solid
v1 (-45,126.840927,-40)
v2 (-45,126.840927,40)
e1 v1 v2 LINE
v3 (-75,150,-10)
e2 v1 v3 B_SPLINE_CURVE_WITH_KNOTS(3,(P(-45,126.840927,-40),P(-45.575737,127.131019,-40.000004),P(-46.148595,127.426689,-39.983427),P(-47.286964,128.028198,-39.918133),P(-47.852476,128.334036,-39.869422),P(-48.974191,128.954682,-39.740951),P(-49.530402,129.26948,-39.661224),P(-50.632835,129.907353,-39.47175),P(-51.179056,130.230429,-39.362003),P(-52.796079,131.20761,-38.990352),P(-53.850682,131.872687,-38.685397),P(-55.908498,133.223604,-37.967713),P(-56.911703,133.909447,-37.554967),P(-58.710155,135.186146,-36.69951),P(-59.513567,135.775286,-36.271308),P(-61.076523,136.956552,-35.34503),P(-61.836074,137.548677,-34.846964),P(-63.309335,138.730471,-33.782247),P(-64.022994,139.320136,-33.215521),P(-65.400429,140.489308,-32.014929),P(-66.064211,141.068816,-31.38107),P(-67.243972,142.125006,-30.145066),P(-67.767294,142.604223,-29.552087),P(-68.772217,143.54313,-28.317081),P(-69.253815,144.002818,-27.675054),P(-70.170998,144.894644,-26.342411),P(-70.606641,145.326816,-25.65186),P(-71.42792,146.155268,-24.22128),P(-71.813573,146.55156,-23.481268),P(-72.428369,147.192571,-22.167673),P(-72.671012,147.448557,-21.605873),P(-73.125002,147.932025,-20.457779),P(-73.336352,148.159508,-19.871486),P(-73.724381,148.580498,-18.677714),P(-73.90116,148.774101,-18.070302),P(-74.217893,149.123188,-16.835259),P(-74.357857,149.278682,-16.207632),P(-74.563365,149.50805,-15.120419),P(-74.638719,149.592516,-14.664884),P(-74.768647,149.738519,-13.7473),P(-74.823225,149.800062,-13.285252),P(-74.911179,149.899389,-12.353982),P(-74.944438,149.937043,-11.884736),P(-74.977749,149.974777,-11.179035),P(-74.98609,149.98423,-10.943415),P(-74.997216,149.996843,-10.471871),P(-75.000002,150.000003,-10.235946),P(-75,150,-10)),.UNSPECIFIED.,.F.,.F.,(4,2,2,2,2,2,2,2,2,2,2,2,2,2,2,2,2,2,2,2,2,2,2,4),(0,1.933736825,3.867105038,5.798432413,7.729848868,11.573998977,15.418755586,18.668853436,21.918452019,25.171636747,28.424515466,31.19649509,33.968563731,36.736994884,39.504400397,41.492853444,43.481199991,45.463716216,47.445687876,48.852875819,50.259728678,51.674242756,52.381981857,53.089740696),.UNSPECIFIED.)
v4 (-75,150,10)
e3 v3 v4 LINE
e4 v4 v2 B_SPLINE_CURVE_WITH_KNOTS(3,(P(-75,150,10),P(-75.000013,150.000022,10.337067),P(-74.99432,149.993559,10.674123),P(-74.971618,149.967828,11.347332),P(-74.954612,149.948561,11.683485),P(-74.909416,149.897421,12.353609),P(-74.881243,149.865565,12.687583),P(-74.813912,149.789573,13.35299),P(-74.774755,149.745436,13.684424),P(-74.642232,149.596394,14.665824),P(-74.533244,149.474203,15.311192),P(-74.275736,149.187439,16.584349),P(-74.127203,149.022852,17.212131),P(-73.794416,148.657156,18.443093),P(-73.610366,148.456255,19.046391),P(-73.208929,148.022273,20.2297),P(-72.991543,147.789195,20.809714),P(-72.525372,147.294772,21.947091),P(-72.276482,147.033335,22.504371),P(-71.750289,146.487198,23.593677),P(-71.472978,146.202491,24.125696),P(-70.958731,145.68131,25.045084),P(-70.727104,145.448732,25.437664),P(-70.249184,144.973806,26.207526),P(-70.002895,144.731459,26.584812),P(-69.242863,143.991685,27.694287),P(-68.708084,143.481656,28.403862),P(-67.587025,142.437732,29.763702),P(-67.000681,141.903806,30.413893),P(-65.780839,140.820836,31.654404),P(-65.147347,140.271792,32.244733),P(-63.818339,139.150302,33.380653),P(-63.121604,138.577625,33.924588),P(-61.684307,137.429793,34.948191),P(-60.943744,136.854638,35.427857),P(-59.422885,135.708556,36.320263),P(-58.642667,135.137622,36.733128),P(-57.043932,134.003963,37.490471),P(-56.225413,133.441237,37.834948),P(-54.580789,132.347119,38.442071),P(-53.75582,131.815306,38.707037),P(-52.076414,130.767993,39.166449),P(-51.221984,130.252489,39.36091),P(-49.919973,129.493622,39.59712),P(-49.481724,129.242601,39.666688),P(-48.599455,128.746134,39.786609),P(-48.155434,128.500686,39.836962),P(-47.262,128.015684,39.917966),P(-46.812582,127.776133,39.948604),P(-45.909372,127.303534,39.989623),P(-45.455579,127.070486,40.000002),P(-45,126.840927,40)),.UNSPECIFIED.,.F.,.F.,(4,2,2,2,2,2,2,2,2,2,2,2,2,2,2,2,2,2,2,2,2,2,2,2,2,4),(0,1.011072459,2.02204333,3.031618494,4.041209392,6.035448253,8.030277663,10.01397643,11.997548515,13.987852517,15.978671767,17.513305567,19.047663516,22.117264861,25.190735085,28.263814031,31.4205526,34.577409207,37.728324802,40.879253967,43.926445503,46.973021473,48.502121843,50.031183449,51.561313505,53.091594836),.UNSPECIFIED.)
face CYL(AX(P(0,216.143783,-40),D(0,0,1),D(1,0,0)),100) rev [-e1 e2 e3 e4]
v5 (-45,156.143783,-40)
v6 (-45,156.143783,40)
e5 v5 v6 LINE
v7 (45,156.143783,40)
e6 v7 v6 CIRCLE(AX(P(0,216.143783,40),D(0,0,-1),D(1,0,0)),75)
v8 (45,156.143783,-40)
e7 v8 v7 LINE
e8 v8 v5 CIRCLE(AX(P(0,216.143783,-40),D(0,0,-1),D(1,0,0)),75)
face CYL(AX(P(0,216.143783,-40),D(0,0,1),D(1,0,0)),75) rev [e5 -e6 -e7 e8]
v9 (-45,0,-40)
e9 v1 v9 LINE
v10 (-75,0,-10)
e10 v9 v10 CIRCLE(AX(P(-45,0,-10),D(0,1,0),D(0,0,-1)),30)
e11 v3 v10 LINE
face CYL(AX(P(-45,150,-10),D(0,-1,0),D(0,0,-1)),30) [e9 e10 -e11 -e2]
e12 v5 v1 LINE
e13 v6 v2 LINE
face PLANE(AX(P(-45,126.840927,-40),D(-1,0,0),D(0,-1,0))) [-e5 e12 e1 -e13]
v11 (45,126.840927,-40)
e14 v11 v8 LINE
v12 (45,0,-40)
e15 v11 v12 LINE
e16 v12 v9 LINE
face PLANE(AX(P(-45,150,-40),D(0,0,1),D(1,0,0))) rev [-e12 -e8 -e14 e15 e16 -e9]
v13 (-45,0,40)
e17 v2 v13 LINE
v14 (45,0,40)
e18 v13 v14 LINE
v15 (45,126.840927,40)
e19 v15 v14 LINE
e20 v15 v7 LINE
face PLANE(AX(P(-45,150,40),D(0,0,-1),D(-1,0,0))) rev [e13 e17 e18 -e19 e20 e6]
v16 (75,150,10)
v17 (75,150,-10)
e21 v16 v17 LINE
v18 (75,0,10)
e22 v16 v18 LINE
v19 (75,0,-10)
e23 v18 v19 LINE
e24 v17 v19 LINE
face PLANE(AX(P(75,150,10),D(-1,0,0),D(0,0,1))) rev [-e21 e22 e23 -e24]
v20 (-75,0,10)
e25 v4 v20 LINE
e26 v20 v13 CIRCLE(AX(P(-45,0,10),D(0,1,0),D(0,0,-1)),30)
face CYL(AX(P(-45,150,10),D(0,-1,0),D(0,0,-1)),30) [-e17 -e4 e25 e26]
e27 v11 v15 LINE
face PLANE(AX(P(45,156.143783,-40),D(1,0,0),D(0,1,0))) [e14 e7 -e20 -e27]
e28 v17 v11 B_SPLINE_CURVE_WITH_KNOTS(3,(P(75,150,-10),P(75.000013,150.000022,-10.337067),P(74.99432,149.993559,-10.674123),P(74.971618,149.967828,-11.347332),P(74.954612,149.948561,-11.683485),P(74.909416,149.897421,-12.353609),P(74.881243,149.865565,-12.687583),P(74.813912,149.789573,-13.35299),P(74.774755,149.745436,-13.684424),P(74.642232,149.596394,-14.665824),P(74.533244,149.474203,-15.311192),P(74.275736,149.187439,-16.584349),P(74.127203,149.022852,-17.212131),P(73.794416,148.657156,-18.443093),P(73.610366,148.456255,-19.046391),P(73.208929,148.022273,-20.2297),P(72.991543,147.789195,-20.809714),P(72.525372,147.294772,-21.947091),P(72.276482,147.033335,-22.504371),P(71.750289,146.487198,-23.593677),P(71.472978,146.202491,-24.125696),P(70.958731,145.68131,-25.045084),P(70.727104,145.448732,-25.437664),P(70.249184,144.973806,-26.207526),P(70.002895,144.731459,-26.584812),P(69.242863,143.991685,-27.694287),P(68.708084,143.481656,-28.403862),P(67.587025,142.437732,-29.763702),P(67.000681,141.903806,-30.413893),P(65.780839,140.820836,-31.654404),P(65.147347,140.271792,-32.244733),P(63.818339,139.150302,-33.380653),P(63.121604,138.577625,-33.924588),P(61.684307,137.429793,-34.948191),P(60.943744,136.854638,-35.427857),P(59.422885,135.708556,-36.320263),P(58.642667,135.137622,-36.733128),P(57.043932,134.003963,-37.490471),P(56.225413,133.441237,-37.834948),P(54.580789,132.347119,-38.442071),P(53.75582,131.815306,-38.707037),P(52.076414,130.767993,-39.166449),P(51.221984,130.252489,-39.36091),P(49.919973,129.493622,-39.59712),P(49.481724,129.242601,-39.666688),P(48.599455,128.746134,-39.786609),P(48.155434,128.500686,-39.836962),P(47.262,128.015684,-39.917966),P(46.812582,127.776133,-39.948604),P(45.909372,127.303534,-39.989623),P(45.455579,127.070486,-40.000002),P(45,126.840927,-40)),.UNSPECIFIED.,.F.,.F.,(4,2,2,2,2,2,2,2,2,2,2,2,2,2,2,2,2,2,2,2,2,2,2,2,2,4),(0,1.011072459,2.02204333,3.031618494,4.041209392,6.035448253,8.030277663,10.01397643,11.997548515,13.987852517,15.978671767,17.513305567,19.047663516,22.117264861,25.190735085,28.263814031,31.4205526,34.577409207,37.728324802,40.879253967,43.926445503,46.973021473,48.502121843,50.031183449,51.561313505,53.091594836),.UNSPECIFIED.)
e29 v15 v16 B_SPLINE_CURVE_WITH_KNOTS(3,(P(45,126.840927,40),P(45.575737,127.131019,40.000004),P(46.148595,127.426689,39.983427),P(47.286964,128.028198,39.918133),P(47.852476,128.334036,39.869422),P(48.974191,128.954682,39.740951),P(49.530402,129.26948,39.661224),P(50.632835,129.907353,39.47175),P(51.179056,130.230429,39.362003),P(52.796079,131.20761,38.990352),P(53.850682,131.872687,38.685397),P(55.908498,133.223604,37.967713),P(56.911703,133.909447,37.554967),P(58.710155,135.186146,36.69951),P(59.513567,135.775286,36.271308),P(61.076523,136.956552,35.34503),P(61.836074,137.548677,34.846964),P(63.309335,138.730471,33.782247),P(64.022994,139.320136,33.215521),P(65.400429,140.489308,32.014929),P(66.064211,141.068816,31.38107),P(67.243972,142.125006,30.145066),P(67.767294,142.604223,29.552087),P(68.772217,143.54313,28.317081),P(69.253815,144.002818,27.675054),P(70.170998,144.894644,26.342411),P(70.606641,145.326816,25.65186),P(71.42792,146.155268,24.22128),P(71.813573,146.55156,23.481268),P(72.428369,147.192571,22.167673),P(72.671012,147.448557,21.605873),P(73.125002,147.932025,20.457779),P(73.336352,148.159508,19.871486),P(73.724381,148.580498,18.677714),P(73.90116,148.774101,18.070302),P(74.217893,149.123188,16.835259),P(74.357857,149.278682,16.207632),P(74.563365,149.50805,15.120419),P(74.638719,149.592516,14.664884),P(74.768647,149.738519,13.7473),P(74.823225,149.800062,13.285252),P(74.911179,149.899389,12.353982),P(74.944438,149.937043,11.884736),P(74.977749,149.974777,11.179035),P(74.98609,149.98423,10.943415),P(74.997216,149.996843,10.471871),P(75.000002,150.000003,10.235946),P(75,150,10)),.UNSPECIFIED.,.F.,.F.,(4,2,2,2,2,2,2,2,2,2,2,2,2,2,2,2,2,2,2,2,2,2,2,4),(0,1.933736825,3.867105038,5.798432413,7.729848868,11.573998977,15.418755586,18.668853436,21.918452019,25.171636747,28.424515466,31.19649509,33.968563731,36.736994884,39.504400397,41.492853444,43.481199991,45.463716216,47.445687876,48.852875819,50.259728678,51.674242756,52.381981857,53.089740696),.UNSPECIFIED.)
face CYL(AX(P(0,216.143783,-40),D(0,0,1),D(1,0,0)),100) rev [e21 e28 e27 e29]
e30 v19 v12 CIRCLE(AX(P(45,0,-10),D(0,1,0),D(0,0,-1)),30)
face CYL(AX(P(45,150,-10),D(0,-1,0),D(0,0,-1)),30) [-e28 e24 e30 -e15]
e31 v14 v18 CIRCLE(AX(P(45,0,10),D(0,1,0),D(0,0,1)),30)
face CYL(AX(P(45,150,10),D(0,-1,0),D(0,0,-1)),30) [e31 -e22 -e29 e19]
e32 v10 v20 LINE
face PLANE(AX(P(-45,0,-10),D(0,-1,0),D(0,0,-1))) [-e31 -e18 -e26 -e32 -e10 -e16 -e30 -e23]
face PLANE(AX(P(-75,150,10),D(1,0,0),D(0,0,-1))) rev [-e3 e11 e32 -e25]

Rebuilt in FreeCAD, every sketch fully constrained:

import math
import FreeCAD as App
import Part
import Sketcher
from FreeCAD import Vector


def add_polygon(sketch, points):
    """Adds a closed chain of lines whose ends are joined by coincident constraints."""
    first, n = sketch.GeometryCount, len(points)
    for a, b in zip(points, points[1:] + points[:1]):
        sketch.addGeometry(Part.LineSegment(App.Vector(*a, 0), App.Vector(*b, 0)), False)
    for i in range(n):
        sketch.addConstraint(Sketcher.Constraint("Coincident", first + i, 2, first + (i + 1) % n, 1))

doc = App.newDocument("Part")
body = doc.addObject("PartDesign::Body", "Body")

sketch1 = body.newObject("Sketcher::SketchObject", "Sketch")
sketch1.AttachmentSupport = (doc.getObject("XZ_Plane"), [""])
sketch1.MapMode = "FlatFace"
sketch1.addGeometry([
    Part.LineSegment(Vector(-45, 40, 0), Vector(45, 40, 0)),
    Part.ArcOfCircle(Part.Circle(Vector(45, 10, 0), Vector(0, 0, 1), 30), math.radians(0), math.radians(90)),
    Part.LineSegment(Vector(75, 10, 0), Vector(75, -10, 0)),
    Part.ArcOfCircle(Part.Circle(Vector(45, -10, 0), Vector(0, 0, 1), 30), math.radians(-90), math.radians(0)),
    Part.LineSegment(Vector(45, -40, 0), Vector(-45, -40, 0)),
    Part.ArcOfCircle(Part.Circle(Vector(-45, -10, 0), Vector(0, 0, 1), 30), math.radians(180), math.radians(270)),
    Part.LineSegment(Vector(-75, -10, 0), Vector(-75, 10, 0)),
    Part.ArcOfCircle(Part.Circle(Vector(-45, 10, 0), Vector(0, 0, 1), 30), math.radians(90), math.radians(180)),
], False)
sketch1.addConstraint([
    Sketcher.Constraint("Tangent", 0, 2, 1, 2),
    Sketcher.Constraint("Tangent", 1, 1, 2, 1),
    Sketcher.Constraint("Tangent", 2, 2, 3, 2),
    Sketcher.Constraint("Tangent", 3, 1, 4, 1),
    Sketcher.Constraint("Tangent", 4, 2, 5, 2),
    Sketcher.Constraint("Tangent", 5, 1, 6, 1),
    Sketcher.Constraint("Tangent", 6, 2, 7, 2),
    Sketcher.Constraint("Tangent", 7, 1, 0, 1),
    Sketcher.Constraint("Horizontal", 0),
    Sketcher.Constraint("Vertical", 2),
    Sketcher.Constraint("Horizontal", 4),
    Sketcher.Constraint("Vertical", 6),
    Sketcher.Constraint("Equal", 1, 3),
    Sketcher.Constraint("Equal", 3, 5),
    Sketcher.Constraint("Equal", 5, 7),
    Sketcher.Constraint("Symmetric", 1, 3, 5, 3, -1, 1),
    Sketcher.Constraint("Radius", 1, 30.0),
    Sketcher.Constraint("DistanceX", 0, 1, 0, 2, 90.0),
    Sketcher.Constraint("DistanceY", 2, 2, 2, 1, 20.0),
])
pad1 = body.newObject("PartDesign::Pad", "Pad")
pad1.Profile = sketch1
pad1.Length = 150
pad1.Reversed = True

sketch2 = body.newObject("Sketcher::SketchObject", "Sketch001")
sketch2.AttachmentSupport = (doc.getObject("XY_Plane"), [""])
sketch2.MapMode = "FlatFace"
add_polygon(sketch2, [(-98.672, 173.672), (-98.672, -23.672), (98.672, -23.672), (98.672, 173.672)])
sketch2.addGeometry(Part.LineSegment(Vector(-75, 0, 0), Vector(-75, 150, 0)), False)
sketch2.addGeometry(Part.ArcOfCircle(Part.Circle(Vector(0, 216.143783, 0), Vector(0, 0, 1), 100), math.radians(-138.590378), math.radians(-41.409622)), False)
sketch2.addGeometry(Part.LineSegment(Vector(75, 150, 0), Vector(75, 0, 0)), False)
sketch2.addGeometry(Part.LineSegment(Vector(75, 0, 0), Vector(-75, 0, 0)), False)
sketch2.addConstraint([
    Sketcher.Constraint("Coincident", 4, 2, 5, 1),
    Sketcher.Constraint("Coincident", 5, 2, 6, 1),
    Sketcher.Constraint("Coincident", 6, 2, 7, 1),
    Sketcher.Constraint("Coincident", 7, 2, 4, 1),
    Sketcher.Constraint("Vertical", 0),
    Sketcher.Constraint("Horizontal", 1),
    Sketcher.Constraint("Vertical", 2),
    Sketcher.Constraint("Horizontal", 3),
    Sketcher.Constraint("Vertical", 4),
    Sketcher.Constraint("Vertical", 6),
    Sketcher.Constraint("Horizontal", 7),
    Sketcher.Constraint("Symmetric", 6, 2, 7, 2, -1, 1),
    Sketcher.Constraint("PointOnObject", 5, 3, -2),
    Sketcher.Constraint("Equal", 3, 0),
    Sketcher.Constraint("Equal", 7, 4),
    Sketcher.Constraint("Radius", 5, 100.0),
    Sketcher.Constraint("DistanceX", 7, 2, 7, 1, 150.0),
    Sketcher.Constraint("DistanceX", 1, 1, 1, 2, 197.344),
    Sketcher.Constraint("DistanceX", 0, 2, -1, 1, 98.672),
    Sketcher.Constraint("DistanceY", 0, 2, -1, 1, 23.672),
])
pocket1 = body.newObject("PartDesign::Pocket", "Pocket")
pocket1.Profile = sketch2
pocket1.Type = "ThroughAll"
pocket1.Midplane = True

sketch3 = body.newObject("Sketcher::SketchObject", "Sketch002")
sketch3.AttachmentSupport = (doc.getObject("XY_Plane"), [""])
sketch3.MapMode = "FlatFace"
sketch3.AttachmentOffset = App.Placement(Vector(0, 0, -40), App.Rotation())
sketch3.addGeometry([
    Part.LineSegment(Vector(-45, 156.143783, 0), Vector(-45, 126.840927, 0)),
    Part.ArcOfCircle(Part.Circle(Vector(0, 216.143783, 0), Vector(0, 0, 1), 100), math.radians(-116.743684), math.radians(-63.256316)),
    Part.LineSegment(Vector(45, 126.840927, 0), Vector(45, 156.143783, 0)),
    Part.ArcOfCircle(Part.Circle(Vector(0, 216.143783, 0), Vector(0, 0, 1), 75), math.radians(-126.869898), math.radians(-53.130102)),
], False)
sketch3.addConstraint([
    Sketcher.Constraint("Coincident", 0, 2, 1, 1),
    Sketcher.Constraint("Coincident", 1, 2, 2, 1),
    Sketcher.Constraint("Coincident", 2, 2, 3, 2),
    Sketcher.Constraint("Coincident", 3, 1, 0, 1),
    Sketcher.Constraint("Vertical", 0),
    Sketcher.Constraint("Vertical", 2),
    Sketcher.Constraint("Coincident", 3, 3, 1, 3),
    Sketcher.Constraint("Symmetric", 0, 2, 1, 2, -2),
    Sketcher.Constraint("Radius", 1, 100.0),
    Sketcher.Constraint("Radius", 3, 75.0),
    Sketcher.Constraint("DistanceX", 0, 2, -1, 1, 45.0),
    Sketcher.Constraint("DistanceY", -1, 1, 1, 3, 216.143783),
])
pad2 = body.newObject("PartDesign::Pad", "Pad001")
pad2.Profile = sketch3
pad2.Length = 80

doc.recompute()
